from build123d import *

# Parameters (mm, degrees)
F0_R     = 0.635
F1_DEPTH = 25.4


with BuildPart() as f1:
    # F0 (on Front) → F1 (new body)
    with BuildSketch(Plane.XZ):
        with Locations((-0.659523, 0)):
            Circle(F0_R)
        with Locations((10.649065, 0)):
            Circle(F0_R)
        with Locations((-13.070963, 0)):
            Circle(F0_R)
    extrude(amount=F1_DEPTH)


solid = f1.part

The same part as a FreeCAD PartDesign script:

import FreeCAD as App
import Part
import Sketcher

V = App.Vector
Q = App.Units.Quantity

doc = App.newDocument("Part")
body = doc.addObject("PartDesign::Body", "Body")
body.AllowCompound = True

# Sketch on XZ plane
sketch1 = doc.addObject("Sketcher::SketchObject", "Sketch")
body.addObject(sketch1)
sketch1.AttachmentSupport = (doc.XZ_Plane, [""])
sketch1.MapMode = "FlatFace"
sketch1.addGeometry([
    Part.Circle(V(-0.7, 0, 0), V(0, 0, 1), 0.6),
    Part.Circle(V(10.6, 0, 0), V(0, 0, 1), 0.6),
    Part.Circle(V(-13.1, 0, 0), V(0, 0, 1), 0.6),
], False)
sketch1.addConstraint([
    Sketcher.Constraint("Equal", 0, 1),
    Sketcher.Constraint("Equal", 1, 2),
    Sketcher.Constraint("PointOnObject", 0, 3, -1),
    Sketcher.Constraint("PointOnObject", 1, 3, -1),
    Sketcher.Constraint("PointOnObject", 2, 3, -1),
    Sketcher.Constraint("Diameter", 0, Q("0.05 in")),
    Sketcher.Constraint("DistanceX", 2, 3, 0, 3, 12.41144),
    Sketcher.Constraint("DistanceX", 0, 3, -1, 1, 0.659523),
    Sketcher.Constraint("DistanceX", -1, 1, 1, 3, 10.649065),
])
pad1 = doc.addObject("PartDesign::Pad", "Pad")
body.addObject(pad1)
pad1.Profile = sketch1
pad1.Length = Q("1 in")

doc.recompute()
